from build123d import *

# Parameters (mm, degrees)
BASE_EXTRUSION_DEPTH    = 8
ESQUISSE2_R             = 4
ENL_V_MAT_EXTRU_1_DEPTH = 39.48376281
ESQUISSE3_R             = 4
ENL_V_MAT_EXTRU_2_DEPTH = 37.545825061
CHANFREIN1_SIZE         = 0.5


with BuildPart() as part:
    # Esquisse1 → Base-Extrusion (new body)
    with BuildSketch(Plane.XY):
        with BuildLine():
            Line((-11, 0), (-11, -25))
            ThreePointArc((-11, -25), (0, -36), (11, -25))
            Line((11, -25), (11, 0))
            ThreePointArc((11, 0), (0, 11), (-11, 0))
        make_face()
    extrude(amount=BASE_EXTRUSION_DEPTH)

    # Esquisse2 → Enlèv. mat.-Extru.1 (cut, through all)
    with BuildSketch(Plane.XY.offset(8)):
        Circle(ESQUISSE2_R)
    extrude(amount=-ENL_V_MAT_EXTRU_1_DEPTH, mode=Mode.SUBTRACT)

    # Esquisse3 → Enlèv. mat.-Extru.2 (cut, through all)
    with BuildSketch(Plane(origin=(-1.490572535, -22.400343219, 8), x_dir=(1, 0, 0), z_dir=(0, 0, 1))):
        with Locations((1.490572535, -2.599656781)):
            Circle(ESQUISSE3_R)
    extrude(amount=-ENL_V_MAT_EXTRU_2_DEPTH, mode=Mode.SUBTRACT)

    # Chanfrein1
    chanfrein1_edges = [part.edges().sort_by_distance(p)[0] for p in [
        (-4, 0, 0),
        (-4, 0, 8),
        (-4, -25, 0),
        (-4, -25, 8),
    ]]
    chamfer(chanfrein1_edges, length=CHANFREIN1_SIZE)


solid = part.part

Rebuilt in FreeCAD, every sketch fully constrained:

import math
import FreeCAD as App
import Part
import Sketcher
from FreeCAD import Vector
Q = App.Units.Quantity


def edges_at(feature, points):
    """Names of the edges that pass closest to the given points."""
    edges = feature.Shape.Edges
    near = lambda p: min(range(len(edges)), key=lambda i: edges[i].distToShape(Part.Vertex(*p))[0])
    return sorted({f"Edge{near(p) + 1}" for p in points})

doc = App.newDocument("Part")
params = doc.addObject("Spreadsheet::Sheet", "Params")
for row, (alias, value) in enumerate([
    ("sketch1_radius", "11 mm"),
    ("sketch1_height", "25 mm"),
    ("pad1_length", "8 mm"),
    ("sketch2_diameter", "8 mm"),
    ("sketch3_diameter", "8 mm"),
    ("chamfer_size", "0.5 mm"),
], start=1):
    params.set(f"A{row}", alias)
    params.set(f"B{row}", "=" + value)
    params.setAlias(f"B{row}", alias)

body = doc.addObject("PartDesign::Body", "Body")

# Sketch on XY plane
sketch1 = body.newObject("Sketcher::SketchObject", "Sketch")
sketch1.AttachmentSupport = (doc.getObject("XY_Plane"), [""])
sketch1.MapMode = "FlatFace"
sketch1.addGeometry([
    Part.LineSegment(Vector(-11, 0, 0), Vector(-11, -25, 0)),
    Part.ArcOfCircle(Part.Circle(Vector(0, -25, 0), Vector(0, 0, 1), 11), math.radians(180), math.radians(360)),
    Part.LineSegment(Vector(11, -25, 0), Vector(11, 0, 0)),
    Part.ArcOfCircle(Part.Circle(Vector(0, 0, 0), Vector(0, 0, 1), 11), math.radians(0), math.radians(180)),
], False)
sketch1.addConstraint([
    Sketcher.Constraint("Tangent", 0, 2, 1, 1),
    Sketcher.Constraint("Tangent", 1, 2, 2, 1),
    Sketcher.Constraint("Tangent", 2, 2, 3, 1),
    Sketcher.Constraint("Tangent", 3, 2, 0, 1),
    Sketcher.Constraint("Vertical", 0),
    Sketcher.Constraint("Vertical", 2),
    Sketcher.Constraint("Coincident", 3, 3, -1, 1),
    Sketcher.Constraint("Radius", 1, Q("11 mm")),
    Sketcher.Constraint("DistanceY", 0, 2, 0, 1, Q("25 mm")),
])
sketch1.setExpression("Constraints[7]", "Params.sketch1_radius")
sketch1.setExpression("Constraints[8]", "Params.sketch1_height")
pad1 = body.newObject("PartDesign::Pad", "Pad")
pad1.Profile = sketch1
pad1.setExpression("Length", "Params.pad1_length")

# Sketch on XY plane
sketch2 = body.newObject("Sketcher::SketchObject", "Sketch001")
sketch2.AttachmentSupport = (doc.getObject("XY_Plane"), [""])
sketch2.MapMode = "FlatFace"
sketch2.AttachmentOffset = App.Placement(Vector(0, 0, 8), App.Rotation())
sketch2.addGeometry(Part.Circle(Vector(0, 0, 0), Vector(0, 0, 1), 4), False)
sketch2.addConstraint([
    Sketcher.Constraint("Coincident", 0, 3, -1, 1),
    Sketcher.Constraint("Diameter", 0, Q("8 mm")),
])
sketch2.setExpression("Constraints[1]", "Params.sketch2_diameter")
pocket1 = body.newObject("PartDesign::Pocket", "Pocket")
pocket1.Profile = sketch2
pocket1.Type = "ThroughAll"

# Sketch on XY plane
sketch3 = body.newObject("Sketcher::SketchObject", "Sketch002")
sketch3.AttachmentSupport = (doc.getObject("XY_Plane"), [""])
sketch3.MapMode = "FlatFace"
sketch3.AttachmentOffset = App.Placement(Vector(0, 0, 8), App.Rotation())
sketch3.addGeometry(Part.Circle(Vector(0, -25, 0), Vector(0, 0, 1), 4), False)
sketch3.addConstraint([
    Sketcher.Constraint("PointOnObject", 0, 3, -2),
    Sketcher.Constraint("Diameter", 0, Q("8 mm")),
    Sketcher.Constraint("DistanceY", 0, 3, -1, 1, Q("25 mm")),
])
sketch3.setExpression("Constraints[1]", "Params.sketch3_diameter")
pocket2 = body.newObject("PartDesign::Pocket", "Pocket001")
pocket2.Profile = sketch3
pocket2.Type = "ThroughAll"
doc.recompute()

chamfer = body.newObject("PartDesign::Chamfer", "Chamfer")
chamfer.Base = (pocket2, edges_at(pocket2, [
    (-4, 0, 0),
    (-4, 0, 8),
    (-4, -25, 0),
    (-4, -25, 8),
]))
chamfer.setExpression("Size", "Params.chamfer_size")

doc.recompute()
